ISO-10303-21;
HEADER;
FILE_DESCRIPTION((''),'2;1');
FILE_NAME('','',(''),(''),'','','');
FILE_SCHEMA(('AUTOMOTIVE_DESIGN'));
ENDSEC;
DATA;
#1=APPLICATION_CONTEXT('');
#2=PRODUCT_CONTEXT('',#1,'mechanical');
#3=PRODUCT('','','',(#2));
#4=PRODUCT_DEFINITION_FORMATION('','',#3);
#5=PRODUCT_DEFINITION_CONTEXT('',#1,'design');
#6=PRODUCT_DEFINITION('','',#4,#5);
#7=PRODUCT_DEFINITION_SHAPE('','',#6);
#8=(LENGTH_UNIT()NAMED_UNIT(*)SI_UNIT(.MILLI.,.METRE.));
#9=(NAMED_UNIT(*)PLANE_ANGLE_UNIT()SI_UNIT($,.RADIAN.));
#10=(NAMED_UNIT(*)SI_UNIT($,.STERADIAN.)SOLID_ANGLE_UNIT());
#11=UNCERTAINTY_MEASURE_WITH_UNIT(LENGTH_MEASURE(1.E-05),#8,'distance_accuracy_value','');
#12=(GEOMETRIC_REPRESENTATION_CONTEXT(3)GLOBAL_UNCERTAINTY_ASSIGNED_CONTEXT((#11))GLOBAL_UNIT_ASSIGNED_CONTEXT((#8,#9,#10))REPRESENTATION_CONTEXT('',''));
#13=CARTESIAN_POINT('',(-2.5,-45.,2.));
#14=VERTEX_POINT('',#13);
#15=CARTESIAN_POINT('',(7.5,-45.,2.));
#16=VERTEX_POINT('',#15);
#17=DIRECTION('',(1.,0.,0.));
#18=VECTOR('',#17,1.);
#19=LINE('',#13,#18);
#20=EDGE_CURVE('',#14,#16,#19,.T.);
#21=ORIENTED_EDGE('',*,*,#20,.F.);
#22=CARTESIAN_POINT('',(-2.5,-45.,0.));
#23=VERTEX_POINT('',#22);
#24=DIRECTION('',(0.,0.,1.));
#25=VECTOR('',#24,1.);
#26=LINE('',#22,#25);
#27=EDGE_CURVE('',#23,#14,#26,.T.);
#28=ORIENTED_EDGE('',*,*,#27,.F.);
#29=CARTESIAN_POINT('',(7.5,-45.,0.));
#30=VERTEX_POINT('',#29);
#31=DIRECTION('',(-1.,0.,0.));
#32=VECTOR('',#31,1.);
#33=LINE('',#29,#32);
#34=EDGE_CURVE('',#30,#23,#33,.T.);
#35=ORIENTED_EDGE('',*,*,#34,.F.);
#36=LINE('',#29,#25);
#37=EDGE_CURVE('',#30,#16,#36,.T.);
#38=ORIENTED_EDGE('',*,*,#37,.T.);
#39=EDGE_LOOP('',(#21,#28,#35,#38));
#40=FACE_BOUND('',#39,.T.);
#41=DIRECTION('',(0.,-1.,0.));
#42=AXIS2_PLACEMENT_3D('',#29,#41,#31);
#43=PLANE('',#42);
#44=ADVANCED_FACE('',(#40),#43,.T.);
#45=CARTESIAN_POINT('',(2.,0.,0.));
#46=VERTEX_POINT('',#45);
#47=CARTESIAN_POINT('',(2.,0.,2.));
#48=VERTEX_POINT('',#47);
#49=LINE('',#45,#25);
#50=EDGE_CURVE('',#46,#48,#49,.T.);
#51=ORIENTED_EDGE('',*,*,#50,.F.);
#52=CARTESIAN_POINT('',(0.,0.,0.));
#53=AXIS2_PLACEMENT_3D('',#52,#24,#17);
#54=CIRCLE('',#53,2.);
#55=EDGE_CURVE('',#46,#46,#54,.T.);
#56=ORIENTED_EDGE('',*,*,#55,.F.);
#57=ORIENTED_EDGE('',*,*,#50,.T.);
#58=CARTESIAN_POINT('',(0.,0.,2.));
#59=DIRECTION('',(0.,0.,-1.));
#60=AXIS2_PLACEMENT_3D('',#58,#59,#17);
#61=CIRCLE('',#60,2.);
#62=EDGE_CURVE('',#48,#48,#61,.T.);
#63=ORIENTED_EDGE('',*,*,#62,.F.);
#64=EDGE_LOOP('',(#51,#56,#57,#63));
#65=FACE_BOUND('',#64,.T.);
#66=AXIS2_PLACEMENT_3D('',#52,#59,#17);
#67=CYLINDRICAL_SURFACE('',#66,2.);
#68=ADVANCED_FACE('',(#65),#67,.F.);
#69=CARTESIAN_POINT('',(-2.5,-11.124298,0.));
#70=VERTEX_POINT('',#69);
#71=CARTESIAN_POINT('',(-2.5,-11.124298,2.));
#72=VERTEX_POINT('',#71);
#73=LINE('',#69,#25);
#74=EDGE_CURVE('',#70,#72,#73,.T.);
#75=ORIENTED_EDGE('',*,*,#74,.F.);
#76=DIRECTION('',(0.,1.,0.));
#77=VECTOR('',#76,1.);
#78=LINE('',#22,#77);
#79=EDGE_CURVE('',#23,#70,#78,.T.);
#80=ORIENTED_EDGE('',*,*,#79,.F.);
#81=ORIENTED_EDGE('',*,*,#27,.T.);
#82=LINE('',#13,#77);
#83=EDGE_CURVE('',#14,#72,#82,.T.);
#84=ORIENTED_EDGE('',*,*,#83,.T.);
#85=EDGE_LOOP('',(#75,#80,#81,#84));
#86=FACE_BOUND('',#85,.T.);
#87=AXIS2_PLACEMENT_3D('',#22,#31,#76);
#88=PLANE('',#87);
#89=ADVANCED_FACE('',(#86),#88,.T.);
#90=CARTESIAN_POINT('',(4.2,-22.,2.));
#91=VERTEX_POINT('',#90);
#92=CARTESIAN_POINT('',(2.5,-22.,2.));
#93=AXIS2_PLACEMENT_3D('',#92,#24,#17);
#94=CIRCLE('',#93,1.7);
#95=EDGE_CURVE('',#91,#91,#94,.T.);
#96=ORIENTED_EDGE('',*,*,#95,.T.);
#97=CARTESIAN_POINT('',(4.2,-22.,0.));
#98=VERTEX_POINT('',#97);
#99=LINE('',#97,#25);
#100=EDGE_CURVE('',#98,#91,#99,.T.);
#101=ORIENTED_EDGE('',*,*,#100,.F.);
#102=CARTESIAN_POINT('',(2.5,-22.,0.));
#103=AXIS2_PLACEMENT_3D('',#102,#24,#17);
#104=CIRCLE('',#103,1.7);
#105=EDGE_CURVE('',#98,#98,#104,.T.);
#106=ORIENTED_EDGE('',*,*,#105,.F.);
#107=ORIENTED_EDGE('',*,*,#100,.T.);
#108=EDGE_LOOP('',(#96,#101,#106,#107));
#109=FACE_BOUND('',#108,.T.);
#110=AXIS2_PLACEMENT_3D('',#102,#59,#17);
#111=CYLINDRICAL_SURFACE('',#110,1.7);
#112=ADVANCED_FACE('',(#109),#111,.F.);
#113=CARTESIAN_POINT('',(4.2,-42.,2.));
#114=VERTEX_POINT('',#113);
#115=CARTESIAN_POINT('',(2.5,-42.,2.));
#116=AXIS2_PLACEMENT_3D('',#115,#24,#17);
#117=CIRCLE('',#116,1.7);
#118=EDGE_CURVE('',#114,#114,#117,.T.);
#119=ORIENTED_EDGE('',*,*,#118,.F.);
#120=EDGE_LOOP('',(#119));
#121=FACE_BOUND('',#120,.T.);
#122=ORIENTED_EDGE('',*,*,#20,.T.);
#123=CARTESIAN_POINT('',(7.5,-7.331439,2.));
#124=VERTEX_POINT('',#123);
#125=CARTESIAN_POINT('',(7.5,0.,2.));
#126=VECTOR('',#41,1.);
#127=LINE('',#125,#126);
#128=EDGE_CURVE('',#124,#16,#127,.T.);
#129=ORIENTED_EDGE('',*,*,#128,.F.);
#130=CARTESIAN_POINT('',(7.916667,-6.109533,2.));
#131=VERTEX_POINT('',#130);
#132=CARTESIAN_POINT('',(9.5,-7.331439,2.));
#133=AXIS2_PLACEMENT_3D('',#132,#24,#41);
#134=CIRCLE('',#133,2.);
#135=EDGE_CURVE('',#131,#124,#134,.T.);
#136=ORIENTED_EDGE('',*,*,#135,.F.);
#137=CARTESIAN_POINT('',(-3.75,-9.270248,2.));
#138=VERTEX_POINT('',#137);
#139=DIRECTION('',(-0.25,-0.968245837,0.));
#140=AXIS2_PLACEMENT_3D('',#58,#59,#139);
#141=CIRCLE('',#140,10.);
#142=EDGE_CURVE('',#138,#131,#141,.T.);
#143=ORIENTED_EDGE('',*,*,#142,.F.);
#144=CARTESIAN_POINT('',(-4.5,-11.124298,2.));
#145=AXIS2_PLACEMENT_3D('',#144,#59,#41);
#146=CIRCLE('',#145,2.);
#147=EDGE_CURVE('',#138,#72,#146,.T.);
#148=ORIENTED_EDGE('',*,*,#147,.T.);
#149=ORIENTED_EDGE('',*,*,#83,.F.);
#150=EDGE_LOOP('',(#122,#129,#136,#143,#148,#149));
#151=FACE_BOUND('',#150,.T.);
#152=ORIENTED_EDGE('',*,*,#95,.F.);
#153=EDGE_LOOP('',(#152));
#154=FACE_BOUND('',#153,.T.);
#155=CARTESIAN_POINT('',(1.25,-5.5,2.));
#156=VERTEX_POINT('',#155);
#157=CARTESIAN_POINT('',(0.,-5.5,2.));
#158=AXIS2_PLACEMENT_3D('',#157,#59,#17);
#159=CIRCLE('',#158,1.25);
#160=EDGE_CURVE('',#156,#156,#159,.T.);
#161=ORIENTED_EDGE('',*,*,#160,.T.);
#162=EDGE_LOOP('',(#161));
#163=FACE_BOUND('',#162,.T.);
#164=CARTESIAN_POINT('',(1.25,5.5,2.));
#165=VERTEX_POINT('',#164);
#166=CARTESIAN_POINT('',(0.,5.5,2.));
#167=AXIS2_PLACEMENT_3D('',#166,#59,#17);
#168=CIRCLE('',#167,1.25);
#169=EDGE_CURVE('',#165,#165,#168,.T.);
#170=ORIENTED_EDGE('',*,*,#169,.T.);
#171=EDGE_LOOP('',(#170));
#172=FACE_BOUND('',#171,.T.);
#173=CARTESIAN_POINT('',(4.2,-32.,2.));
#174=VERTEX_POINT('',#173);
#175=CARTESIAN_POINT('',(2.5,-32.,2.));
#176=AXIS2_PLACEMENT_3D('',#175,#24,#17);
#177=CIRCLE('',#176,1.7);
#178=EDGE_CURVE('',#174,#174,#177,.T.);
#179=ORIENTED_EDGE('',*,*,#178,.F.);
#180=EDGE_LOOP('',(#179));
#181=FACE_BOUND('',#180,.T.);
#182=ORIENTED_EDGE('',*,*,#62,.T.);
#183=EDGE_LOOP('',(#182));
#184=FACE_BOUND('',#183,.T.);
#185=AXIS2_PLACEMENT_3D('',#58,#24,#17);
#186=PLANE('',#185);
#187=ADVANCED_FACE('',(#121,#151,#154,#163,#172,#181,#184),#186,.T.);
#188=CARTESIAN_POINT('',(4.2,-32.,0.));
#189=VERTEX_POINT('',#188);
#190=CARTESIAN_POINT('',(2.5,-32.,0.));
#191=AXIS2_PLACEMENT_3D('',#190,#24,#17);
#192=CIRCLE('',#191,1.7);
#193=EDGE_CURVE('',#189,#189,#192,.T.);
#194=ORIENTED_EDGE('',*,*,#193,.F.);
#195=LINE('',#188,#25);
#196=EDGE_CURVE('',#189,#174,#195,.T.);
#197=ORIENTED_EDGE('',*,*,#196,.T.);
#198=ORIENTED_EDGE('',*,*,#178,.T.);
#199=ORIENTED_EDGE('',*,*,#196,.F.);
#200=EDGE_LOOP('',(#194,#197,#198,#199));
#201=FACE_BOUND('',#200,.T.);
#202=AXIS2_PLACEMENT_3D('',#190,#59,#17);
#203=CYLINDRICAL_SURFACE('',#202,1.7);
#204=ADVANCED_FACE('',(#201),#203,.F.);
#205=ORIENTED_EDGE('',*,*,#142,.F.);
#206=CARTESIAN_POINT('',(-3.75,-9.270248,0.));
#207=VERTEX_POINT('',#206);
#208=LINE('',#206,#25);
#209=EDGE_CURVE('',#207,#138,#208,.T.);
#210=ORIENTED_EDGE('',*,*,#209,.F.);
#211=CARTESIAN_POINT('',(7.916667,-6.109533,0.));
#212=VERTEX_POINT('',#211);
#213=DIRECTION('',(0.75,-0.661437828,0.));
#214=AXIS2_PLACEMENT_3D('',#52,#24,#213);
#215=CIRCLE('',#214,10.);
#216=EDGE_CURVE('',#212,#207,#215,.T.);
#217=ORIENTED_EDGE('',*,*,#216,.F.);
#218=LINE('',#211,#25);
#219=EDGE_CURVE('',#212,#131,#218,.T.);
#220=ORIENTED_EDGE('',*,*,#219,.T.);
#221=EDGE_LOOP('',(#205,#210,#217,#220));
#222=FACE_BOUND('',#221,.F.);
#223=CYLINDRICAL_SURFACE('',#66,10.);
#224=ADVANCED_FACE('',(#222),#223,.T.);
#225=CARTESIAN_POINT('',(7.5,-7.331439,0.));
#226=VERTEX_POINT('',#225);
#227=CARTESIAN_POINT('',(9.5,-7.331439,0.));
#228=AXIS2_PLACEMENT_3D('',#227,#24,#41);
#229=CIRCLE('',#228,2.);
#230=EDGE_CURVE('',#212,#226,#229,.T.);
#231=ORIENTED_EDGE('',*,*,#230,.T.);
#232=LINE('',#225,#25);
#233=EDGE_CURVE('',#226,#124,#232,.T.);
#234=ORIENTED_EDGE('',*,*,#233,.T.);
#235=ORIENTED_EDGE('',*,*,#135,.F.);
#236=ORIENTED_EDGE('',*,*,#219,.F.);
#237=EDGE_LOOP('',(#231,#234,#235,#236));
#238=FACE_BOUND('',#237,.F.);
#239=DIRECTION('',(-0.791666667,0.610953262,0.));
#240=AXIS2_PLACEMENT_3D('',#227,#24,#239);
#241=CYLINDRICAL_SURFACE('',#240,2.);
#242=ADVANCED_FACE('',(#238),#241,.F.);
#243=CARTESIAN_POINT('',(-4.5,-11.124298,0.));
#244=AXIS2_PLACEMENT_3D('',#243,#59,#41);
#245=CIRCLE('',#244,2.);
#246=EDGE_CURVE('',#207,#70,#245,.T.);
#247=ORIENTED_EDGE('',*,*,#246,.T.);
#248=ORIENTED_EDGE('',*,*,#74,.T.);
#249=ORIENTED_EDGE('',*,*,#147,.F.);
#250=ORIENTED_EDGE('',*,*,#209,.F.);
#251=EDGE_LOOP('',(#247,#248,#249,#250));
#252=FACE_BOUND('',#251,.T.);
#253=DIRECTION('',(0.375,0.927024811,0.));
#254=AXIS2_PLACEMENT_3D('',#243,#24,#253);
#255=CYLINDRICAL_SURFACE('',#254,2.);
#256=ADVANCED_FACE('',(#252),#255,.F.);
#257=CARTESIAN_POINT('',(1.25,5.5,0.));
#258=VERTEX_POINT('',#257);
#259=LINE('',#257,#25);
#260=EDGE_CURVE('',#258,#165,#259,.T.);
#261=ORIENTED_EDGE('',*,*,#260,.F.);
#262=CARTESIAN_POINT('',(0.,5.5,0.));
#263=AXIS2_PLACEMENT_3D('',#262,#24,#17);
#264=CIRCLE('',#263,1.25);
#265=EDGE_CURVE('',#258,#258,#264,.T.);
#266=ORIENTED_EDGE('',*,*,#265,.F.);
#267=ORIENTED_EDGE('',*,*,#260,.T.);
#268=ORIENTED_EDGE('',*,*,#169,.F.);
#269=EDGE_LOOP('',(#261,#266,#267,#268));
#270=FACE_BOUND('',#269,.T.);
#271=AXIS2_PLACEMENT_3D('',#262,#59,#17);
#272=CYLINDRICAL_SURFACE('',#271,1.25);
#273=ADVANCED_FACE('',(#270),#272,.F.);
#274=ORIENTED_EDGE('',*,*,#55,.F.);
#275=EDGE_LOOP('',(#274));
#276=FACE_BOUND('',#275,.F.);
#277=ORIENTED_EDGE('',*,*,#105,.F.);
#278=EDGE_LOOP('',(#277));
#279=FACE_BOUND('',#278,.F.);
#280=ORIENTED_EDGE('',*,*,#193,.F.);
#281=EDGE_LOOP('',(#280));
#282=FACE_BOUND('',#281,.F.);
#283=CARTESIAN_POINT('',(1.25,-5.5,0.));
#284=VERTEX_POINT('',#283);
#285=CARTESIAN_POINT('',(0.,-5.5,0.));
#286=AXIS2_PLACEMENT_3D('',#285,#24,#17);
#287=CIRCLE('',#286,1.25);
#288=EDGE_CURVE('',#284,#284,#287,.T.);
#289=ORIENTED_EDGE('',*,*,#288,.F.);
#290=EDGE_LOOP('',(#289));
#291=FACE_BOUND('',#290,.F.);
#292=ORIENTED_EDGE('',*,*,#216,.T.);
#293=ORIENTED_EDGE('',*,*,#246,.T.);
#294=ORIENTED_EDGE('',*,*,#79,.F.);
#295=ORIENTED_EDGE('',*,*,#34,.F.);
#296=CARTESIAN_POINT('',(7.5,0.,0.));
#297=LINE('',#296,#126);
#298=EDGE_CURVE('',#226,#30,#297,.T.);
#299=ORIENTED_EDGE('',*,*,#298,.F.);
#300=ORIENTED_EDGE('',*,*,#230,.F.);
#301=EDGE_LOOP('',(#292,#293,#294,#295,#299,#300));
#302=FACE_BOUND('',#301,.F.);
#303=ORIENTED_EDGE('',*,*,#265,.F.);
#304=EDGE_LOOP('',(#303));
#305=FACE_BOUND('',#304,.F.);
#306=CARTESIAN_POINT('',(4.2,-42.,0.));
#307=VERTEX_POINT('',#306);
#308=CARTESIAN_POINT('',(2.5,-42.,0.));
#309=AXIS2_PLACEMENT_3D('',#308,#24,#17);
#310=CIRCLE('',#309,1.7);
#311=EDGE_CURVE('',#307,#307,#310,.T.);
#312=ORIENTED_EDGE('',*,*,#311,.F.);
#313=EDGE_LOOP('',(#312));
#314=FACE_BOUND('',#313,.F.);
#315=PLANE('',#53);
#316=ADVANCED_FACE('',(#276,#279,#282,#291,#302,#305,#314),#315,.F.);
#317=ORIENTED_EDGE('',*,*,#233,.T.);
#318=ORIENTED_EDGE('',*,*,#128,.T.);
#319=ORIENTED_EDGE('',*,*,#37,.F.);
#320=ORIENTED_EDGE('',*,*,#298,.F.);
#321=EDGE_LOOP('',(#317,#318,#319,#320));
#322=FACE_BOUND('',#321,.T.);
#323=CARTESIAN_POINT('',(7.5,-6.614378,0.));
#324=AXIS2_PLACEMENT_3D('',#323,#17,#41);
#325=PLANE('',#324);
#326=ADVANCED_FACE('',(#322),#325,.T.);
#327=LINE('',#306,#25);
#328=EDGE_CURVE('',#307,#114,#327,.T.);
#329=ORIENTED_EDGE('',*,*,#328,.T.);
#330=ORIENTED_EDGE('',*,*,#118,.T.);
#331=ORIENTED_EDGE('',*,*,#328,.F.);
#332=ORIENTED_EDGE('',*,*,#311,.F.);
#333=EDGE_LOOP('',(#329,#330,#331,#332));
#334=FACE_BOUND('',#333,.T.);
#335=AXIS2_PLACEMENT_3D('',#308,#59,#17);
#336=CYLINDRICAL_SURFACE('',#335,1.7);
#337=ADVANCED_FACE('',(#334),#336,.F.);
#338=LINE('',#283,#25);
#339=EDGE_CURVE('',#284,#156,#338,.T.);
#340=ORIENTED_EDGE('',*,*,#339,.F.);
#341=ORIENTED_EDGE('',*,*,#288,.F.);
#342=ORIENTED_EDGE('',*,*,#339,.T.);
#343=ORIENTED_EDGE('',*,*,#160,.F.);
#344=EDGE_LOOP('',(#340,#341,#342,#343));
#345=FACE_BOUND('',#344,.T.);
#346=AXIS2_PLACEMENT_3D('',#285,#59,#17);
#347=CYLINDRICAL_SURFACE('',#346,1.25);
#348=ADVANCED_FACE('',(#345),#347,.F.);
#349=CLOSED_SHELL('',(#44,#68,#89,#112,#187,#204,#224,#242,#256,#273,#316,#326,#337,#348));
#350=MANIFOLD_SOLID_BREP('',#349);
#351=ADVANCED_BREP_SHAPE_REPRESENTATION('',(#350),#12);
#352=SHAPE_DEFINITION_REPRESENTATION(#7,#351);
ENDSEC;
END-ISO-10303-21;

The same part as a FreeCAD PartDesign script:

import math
import FreeCAD as App
import Part
import Sketcher
from FreeCAD import Vector
Q = App.Units.Quantity


def edges_at(feature, points):
    """Names of the edges that pass closest to the given points."""
    edges = feature.Shape.Edges
    near = lambda p: min(range(len(edges)), key=lambda i: edges[i].distToShape(Part.Vertex(*p))[0])
    return sorted({f"Edge{near(p) + 1}" for p in points})

doc = App.newDocument("Part")
body = doc.addObject("PartDesign::Body", "Body")

# Sketch on XY plane
sketch1 = body.newObject("Sketcher::SketchObject", "Sketch")
sketch1.AttachmentSupport = (doc.getObject("XY_Plane"), [""])
sketch1.MapMode = "FlatFace"
sketch1.addGeometry(Part.ArcOfCircle(Part.Circle(Vector(0, 0, 0), Vector(0, 0, 1), 10), math.radians(-41.409622), math.radians(255.522488)), False)
sketch1.addGeometry(Part.LineSegment(Vector(-2.5, -9.682458, 0), Vector(-2.5, -45, 0)), False)
sketch1.addGeometry(Part.LineSegment(Vector(-2.5, -45, 0), Vector(7.5, -45, 0)), False)
sketch1.addGeometry(Part.LineSegment(Vector(7.5, -45, 0), Vector(7.5, -6.614378, 0)), False)
sketch1.addGeometry(Part.Circle(Vector(0, 5.5, 0), Vector(0, 0, 1), 1.25), False)
sketch1.addGeometry(Part.Circle(Vector(0, -5.5, 0), Vector(0, 0, 1), 1.25), False)
sketch1.addGeometry(Part.Circle(Vector(0, 0, 0), Vector(0, 0, 1), 2), False)
sketch1.addGeometry(Part.Circle(Vector(2.5, -22, 0), Vector(0, 0, 1), 1.7), False)
sketch1.addGeometry(Part.Circle(Vector(2.5, -42, 0), Vector(0, 0, 1), 1.7), False)
sketch1.addGeometry(Part.Circle(Vector(2.5, -32, 0), Vector(0, 0, 1), 1.7), False)
sketch1.addConstraint(Sketcher.Constraint("Coincident", 0, 2, 1, 1))
sketch1.addConstraint(Sketcher.Constraint("Coincident", 1, 2, 2, 1))
sketch1.addConstraint(Sketcher.Constraint("Coincident", 2, 2, 3, 1))
sketch1.addConstraint(Sketcher.Constraint("Coincident", 3, 2, 0, 1))
sketch1.addConstraint(Sketcher.Constraint("Vertical", 1))
sketch1.addConstraint(Sketcher.Constraint("Horizontal", 2))
sketch1.addConstraint(Sketcher.Constraint("Vertical", 3))
sketch1.addConstraint(Sketcher.Constraint("Coincident", 0, 3, -1, 1))
sketch1.addConstraint(Sketcher.Constraint("Coincident", 6, 3, -1, 1))
sketch1.addConstraint(Sketcher.Constraint("Equal", 4, 5))
sketch1.addConstraint(Sketcher.Constraint("Equal", 7, 8))
sketch1.addConstraint(Sketcher.Constraint("Equal", 8, 9))
sketch1.addConstraint(Sketcher.Constraint("Symmetric", 4, 3, 5, 3, -1, 1))
sketch1.addConstraint(Sketcher.Constraint("PointOnObject", 4, 3, -2))
sketch1.addConstraint(Sketcher.Constraint("Vertical", 7, 3, 8, 3))
sketch1.addConstraint(Sketcher.Constraint("Vertical", 8, 3, 9, 3))
sketch1.addConstraint(Sketcher.Constraint("Diameter", 6, Q("4 mm")))
sketch1.addConstraint(Sketcher.Constraint("Radius", 0, Q("10 mm")))
sketch1.addConstraint(Sketcher.Constraint("Diameter", 4, Q("2.5 mm")))
sketch1.addConstraint(Sketcher.Constraint("Diameter", 7, Q("3.4 mm")))
sketch1.addConstraint(Sketcher.Constraint("DistanceX", 2, 1, 2, 2, Q("10 mm")))
sketch1.addConstraint(Sketcher.Constraint("DistanceY", 1, 2, -1, 1, Q("45 mm")))
sketch1.addConstraint(Sketcher.Constraint("DistanceY", 5, 3, 4, 3, Q("11 mm")))
sketch1.addConstraint(Sketcher.Constraint("DistanceY", 8, 3, 7, 3, Q("20 mm")))
sketch1.addConstraint(Sketcher.Constraint("DistanceY", 9, 3, 7, 3, Q("10 mm")))
sketch1.addConstraint(Sketcher.Constraint("DistanceX", -1, 1, 7, 3, Q("2.5 mm")))
sketch1.addConstraint(Sketcher.Constraint("DistanceX", 0, 2, -1, 1, Q("2.5 mm")))
sketch1.addConstraint(Sketcher.Constraint("DistanceY", 7, 3, -1, 1, Q("22 mm")))
pad1 = body.newObject("PartDesign::Pad", "Pad")
pad1.Profile = sketch1
pad1.Length = 2
doc.recompute()

fillet = body.newObject("PartDesign::Fillet", "Fillet")
fillet.Base = (pad1, edges_at(pad1, [(7.5, -6.614, 1), (-2.5, -9.682, 1)]))
fillet.Radius = 2

doc.recompute()
